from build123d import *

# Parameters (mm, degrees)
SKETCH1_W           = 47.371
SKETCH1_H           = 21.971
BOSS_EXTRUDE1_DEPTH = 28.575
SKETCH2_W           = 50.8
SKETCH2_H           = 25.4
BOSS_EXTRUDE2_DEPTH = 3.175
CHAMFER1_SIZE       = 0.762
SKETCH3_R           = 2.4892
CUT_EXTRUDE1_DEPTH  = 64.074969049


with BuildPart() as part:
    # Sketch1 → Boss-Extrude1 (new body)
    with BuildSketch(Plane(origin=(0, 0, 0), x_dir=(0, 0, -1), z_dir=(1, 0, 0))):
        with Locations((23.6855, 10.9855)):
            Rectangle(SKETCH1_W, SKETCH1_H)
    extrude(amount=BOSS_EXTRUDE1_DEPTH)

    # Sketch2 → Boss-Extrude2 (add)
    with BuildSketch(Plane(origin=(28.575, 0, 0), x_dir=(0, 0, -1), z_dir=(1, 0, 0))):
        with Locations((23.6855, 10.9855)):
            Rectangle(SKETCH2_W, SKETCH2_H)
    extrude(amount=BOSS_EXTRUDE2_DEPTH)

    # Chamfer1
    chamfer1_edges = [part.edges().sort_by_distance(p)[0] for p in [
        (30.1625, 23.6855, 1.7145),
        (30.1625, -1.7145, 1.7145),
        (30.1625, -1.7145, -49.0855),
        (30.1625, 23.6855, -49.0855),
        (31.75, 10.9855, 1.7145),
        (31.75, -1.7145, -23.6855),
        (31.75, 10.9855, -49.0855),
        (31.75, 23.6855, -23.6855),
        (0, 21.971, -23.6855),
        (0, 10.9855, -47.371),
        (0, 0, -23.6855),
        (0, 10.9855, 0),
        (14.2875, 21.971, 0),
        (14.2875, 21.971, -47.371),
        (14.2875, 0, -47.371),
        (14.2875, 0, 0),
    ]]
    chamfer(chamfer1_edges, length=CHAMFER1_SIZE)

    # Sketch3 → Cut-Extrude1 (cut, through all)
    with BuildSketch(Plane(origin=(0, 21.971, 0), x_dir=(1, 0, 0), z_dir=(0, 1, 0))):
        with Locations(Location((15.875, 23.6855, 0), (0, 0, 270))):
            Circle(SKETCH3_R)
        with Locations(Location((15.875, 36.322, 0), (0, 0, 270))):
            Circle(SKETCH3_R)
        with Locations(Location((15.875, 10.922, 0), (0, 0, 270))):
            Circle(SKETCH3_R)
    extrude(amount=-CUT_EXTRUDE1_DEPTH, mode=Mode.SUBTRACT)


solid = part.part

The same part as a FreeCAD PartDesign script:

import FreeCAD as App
import Part
import Sketcher
Q = App.Units.Quantity


def edges_at(feature, points):
    """Names of the edges that pass closest to the given points."""
    edges = feature.Shape.Edges
    near = lambda p: min(range(len(edges)), key=lambda i: edges[i].distToShape(Part.Vertex(*p))[0])
    return sorted({f"Edge{near(p) + 1}" for p in points})

doc = App.newDocument("Part")
body = doc.addObject("PartDesign::Body", "Body")

# Sketch on YZ plane
sketch1 = body.newObject("Sketcher::SketchObject", "Sketch")
sketch1.AttachmentSupport = (doc.getObject("YZ_Plane"), [""])
sketch1.MapMode = "FlatFace"
sketch1.addGeometry(Part.LineSegment(App.Vector(22, 0, 0), App.Vector(0, 0, 0)), False)
sketch1.addGeometry(Part.LineSegment(App.Vector(0, 0, 0), App.Vector(0, -47, 0)), False)
sketch1.addGeometry(Part.LineSegment(App.Vector(0, -47, 0), App.Vector(22, -47, 0)), False)
sketch1.addGeometry(Part.LineSegment(App.Vector(22, -47, 0), App.Vector(22, 0, 0)), False)
sketch1.addConstraint(Sketcher.Constraint("Coincident", 0, 2, 1, 1))
sketch1.addConstraint(Sketcher.Constraint("Coincident", 1, 2, 2, 1))
sketch1.addConstraint(Sketcher.Constraint("Coincident", 2, 2, 3, 1))
sketch1.addConstraint(Sketcher.Constraint("Coincident", 3, 2, 0, 1))
sketch1.addConstraint(Sketcher.Constraint("Horizontal", 0))
sketch1.addConstraint(Sketcher.Constraint("Vertical", 1))
sketch1.addConstraint(Sketcher.Constraint("Horizontal", 2))
sketch1.addConstraint(Sketcher.Constraint("Vertical", 3))
sketch1.addConstraint(Sketcher.Constraint("Coincident", 0, 2, -1, 1))
sketch1.addConstraint(Sketcher.Constraint("DistanceX", 0, 2, 0, 1, Q("0.865 in")))
sketch1.addConstraint(Sketcher.Constraint("DistanceY", 1, 2, 1, 1, Q("1.865 in")))
pad1 = body.newObject("PartDesign::Pad", "Pad")
pad1.Profile = sketch1
pad1.Length = Q("1.125 in")

# Sketch on YZ plane
sketch2 = body.newObject("Sketcher::SketchObject", "Sketch001")
sketch2.AttachmentSupport = (doc.getObject("YZ_Plane"), [""])
sketch2.MapMode = "FlatFace"
sketch2.AttachmentOffset = App.Placement(App.Vector(0, 0, 1.125 * 25.4), App.Rotation())
sketch2.addGeometry(Part.LineSegment(App.Vector(24, 2, 0), App.Vector(-2, 2, 0)), False)
sketch2.addGeometry(Part.LineSegment(App.Vector(-2, 2, 0), App.Vector(-2, -49, 0)), False)
sketch2.addGeometry(Part.LineSegment(App.Vector(-2, -49, 0), App.Vector(24, -49, 0)), False)
sketch2.addGeometry(Part.LineSegment(App.Vector(24, -49, 0), App.Vector(24, 2, 0)), False)
sketch2.addConstraint(Sketcher.Constraint("Coincident", 0, 2, 1, 1))
sketch2.addConstraint(Sketcher.Constraint("Coincident", 1, 2, 2, 1))
sketch2.addConstraint(Sketcher.Constraint("Coincident", 2, 2, 3, 1))
sketch2.addConstraint(Sketcher.Constraint("Coincident", 3, 2, 0, 1))
sketch2.addConstraint(Sketcher.Constraint("Horizontal", 0))
sketch2.addConstraint(Sketcher.Constraint("Vertical", 1))
sketch2.addConstraint(Sketcher.Constraint("Horizontal", 2))
sketch2.addConstraint(Sketcher.Constraint("Vertical", 3))
sketch2.addConstraint(Sketcher.Constraint("DistanceX", 0, 2, 0, 1, Q("1 in")))
sketch2.addConstraint(Sketcher.Constraint("DistanceY", 1, 2, 1, 1, Q("2 in")))
sketch2.addConstraint(Sketcher.Constraint("DistanceX", 0, 2, -1, 1, Q("0.0675 in")))
sketch2.addConstraint(Sketcher.Constraint("DistanceY", -1, 1, 0, 2, Q("0.0675 in")))
pad2 = body.newObject("PartDesign::Pad", "Pad001")
pad2.Profile = sketch2
pad2.Length = Q("0.125 in")
doc.recompute()

chamfer = body.newObject("PartDesign::Chamfer", "Chamfer")
chamfer.Base = (pad2, edges_at(pad2, [
    (30.163, 23.686, 1.714),
    (30.163, -1.714, 1.714),
    (30.163, -1.714, -49.086),
    (30.163, 23.686, -49.086),
    (31.75, 10.986, 1.714),
    (31.75, -1.714, -23.686),
    (31.75, 10.986, -49.086),
    (31.75, 23.686, -23.686),
    (0, 21.971, -23.686),
    (0, 10.986, -47.371),
    (0, 0, -23.686),
    (0, 10.986, 0),
    (14.287, 21.971, 0),
    (14.287, 21.971, -47.371),
    (14.287, 0, -47.371),
    (14.287, 0, 0),
]))
chamfer.Size = Q("0.03 in")

# Sketch on XZ plane
sketch3 = body.newObject("Sketcher::SketchObject", "Sketch002")
sketch3.AttachmentSupport = (doc.getObject("XZ_Plane"), [""])
sketch3.MapMode = "FlatFace"
sketch3.AttachmentOffset = App.Placement(App.Vector(0, 0, -0.865 * 25.4), App.Rotation())
sketch3.addGeometry(Part.Circle(App.Vector(15.9, -23.7, 0), App.Vector(0, 0, 1), 2.5), False)
sketch3.addGeometry(Part.Circle(App.Vector(15.9, -36.3, 0), App.Vector(0, 0, 1), 2.5), False)
sketch3.addGeometry(Part.Circle(App.Vector(15.9, -10.9, 0), App.Vector(0, 0, 1), 2.5), False)
sketch3.addConstraint(Sketcher.Constraint("Equal", 0, 1))
sketch3.addConstraint(Sketcher.Constraint("Equal", 1, 2))
sketch3.addConstraint(Sketcher.Constraint("Vertical", 0, 3, 1, 3))
sketch3.addConstraint(Sketcher.Constraint("Vertical", 1, 3, 2, 3))
sketch3.addConstraint(Sketcher.Constraint("Diameter", 0, Q("0.196 in")))
sketch3.addConstraint(Sketcher.Constraint("DistanceY", 1, 3, 2, 3, Q("1 in")))
sketch3.addConstraint(Sketcher.Constraint("DistanceY", 1, 3, -1, 1, Q("1.43 in")))
sketch3.addConstraint(Sketcher.Constraint("DistanceX", -1, 1, 0, 3, Q("0.625 in")))
sketch3.addConstraint(Sketcher.Constraint("DistanceY", 0, 3, -1, 1, Q("0.9325 in")))
pocket1 = body.newObject("PartDesign::Pocket", "Pocket")
pocket1.Profile = sketch3
pocket1.Type = "ThroughAll"
pocket1.Reversed = True

doc.recompute()
